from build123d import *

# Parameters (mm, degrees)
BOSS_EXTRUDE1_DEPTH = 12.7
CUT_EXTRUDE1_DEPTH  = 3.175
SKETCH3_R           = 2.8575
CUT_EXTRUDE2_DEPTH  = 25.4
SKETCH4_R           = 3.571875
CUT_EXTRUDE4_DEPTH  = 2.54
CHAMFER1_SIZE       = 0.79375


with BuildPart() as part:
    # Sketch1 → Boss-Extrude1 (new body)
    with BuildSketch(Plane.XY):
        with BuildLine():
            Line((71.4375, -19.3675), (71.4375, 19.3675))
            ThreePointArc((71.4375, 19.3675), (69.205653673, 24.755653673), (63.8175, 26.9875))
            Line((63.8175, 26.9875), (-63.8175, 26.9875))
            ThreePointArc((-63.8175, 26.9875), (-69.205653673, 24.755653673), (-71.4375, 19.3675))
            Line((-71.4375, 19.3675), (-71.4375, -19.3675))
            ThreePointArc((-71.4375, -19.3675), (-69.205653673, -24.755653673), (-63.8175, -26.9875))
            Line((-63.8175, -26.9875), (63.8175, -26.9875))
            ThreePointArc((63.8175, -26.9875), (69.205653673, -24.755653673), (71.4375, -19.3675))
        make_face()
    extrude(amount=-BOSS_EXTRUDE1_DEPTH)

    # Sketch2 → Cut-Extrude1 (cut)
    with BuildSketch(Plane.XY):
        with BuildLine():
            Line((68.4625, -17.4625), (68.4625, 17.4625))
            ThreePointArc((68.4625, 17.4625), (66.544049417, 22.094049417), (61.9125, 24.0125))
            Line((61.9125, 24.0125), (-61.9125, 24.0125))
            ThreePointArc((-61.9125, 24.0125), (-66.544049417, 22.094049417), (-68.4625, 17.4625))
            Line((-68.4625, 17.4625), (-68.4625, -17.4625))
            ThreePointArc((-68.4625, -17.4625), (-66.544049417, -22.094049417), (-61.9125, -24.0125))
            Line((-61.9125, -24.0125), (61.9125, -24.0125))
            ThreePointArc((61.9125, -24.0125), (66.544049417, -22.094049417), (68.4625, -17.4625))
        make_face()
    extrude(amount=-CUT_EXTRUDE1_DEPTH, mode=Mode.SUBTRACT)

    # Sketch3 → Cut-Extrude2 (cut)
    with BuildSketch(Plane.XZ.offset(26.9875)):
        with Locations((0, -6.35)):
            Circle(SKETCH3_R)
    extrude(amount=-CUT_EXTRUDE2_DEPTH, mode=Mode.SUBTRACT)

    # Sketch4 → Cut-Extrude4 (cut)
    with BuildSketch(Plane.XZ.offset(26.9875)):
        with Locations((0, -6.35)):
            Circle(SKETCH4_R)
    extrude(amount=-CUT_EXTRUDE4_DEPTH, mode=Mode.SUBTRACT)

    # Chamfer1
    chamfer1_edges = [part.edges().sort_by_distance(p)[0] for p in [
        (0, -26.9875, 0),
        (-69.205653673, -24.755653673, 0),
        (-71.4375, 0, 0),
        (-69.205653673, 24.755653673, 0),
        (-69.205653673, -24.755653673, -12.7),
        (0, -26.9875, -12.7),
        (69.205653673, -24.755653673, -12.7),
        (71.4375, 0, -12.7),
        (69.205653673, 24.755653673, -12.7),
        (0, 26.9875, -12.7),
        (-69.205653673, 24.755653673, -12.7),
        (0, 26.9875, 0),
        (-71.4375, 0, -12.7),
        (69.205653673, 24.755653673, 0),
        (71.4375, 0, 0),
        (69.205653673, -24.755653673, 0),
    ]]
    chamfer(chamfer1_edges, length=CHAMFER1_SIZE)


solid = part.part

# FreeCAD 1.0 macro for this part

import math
import FreeCAD as App
import Part
import Sketcher
from FreeCAD import Vector
Q = App.Units.Quantity


def edges_at(feature, points):
    """Names of the edges that pass closest to the given points."""
    edges = feature.Shape.Edges
    near = lambda p: min(range(len(edges)), key=lambda i: edges[i].distToShape(Part.Vertex(*p))[0])
    return sorted({f"Edge{near(p) + 1}" for p in points})

doc = App.newDocument("Part")
body = doc.addObject("PartDesign::Body", "Body")

sketch1 = body.newObject("Sketcher::SketchObject", "Sketch")
sketch1.AttachmentSupport = (doc.getObject("XY_Plane"), [""])
sketch1.MapMode = "FlatFace"
sketch1.addGeometry([
    Part.LineSegment(Vector(71, -19, 0), Vector(71, 19, 0)),
    Part.ArcOfCircle(Part.Circle(Vector(64, 19, 0), Vector(0, 0, 1), 8), math.radians(0), math.radians(90)),
    Part.LineSegment(Vector(64, 27, 0), Vector(-64, 27, 0)),
    Part.ArcOfCircle(Part.Circle(Vector(-64, 19, 0), Vector(0, 0, 1), 8), math.radians(90), math.radians(180)),
    Part.LineSegment(Vector(-71, 19, 0), Vector(-71, -19, 0)),
    Part.ArcOfCircle(Part.Circle(Vector(-64, -19, 0), Vector(0, 0, 1), 8), math.radians(180), math.radians(270)),
    Part.LineSegment(Vector(-64, -27, 0), Vector(64, -27, 0)),
    Part.ArcOfCircle(Part.Circle(Vector(64, -19, 0), Vector(0, 0, 1), 8), math.radians(-90), math.radians(0)),
], False)
sketch1.addConstraint([
    Sketcher.Constraint("Tangent", 0, 2, 1, 1),
    Sketcher.Constraint("Tangent", 1, 2, 2, 1),
    Sketcher.Constraint("Tangent", 2, 2, 3, 1),
    Sketcher.Constraint("Tangent", 3, 2, 4, 1),
    Sketcher.Constraint("Tangent", 4, 2, 5, 1),
    Sketcher.Constraint("Tangent", 5, 2, 6, 1),
    Sketcher.Constraint("Tangent", 6, 2, 7, 1),
    Sketcher.Constraint("Tangent", 7, 2, 0, 1),
    Sketcher.Constraint("Vertical", 0),
    Sketcher.Constraint("Horizontal", 2),
    Sketcher.Constraint("Vertical", 4),
    Sketcher.Constraint("Horizontal", 6),
    Sketcher.Constraint("Equal", 1, 3),
    Sketcher.Constraint("Equal", 3, 5),
    Sketcher.Constraint("Equal", 5, 7),
    Sketcher.Constraint("Symmetric", 1, 3, 5, 3, -1, 1),
    Sketcher.Constraint("Radius", 1, Q("0.3 in")),
    Sketcher.Constraint("DistanceX", 2, 2, 2, 1, Q("5.025 in")),
    Sketcher.Constraint("DistanceY", 0, 1, 0, 2, Q("1.525 in")),
])
pad1 = body.newObject("PartDesign::Pad", "Pad")
pad1.Profile = sketch1
pad1.Length = Q("0.5 in")
pad1.Reversed = True

sketch2 = body.newObject("Sketcher::SketchObject", "Sketch001")
sketch2.AttachmentSupport = (doc.getObject("XY_Plane"), [""])
sketch2.MapMode = "FlatFace"
sketch2.addGeometry([
    Part.LineSegment(Vector(68, -17, 0), Vector(68, 17, 0)),
    Part.ArcOfCircle(Part.Circle(Vector(62, 17, 0), Vector(0, 0, 1), 7), math.radians(0), math.radians(90)),
    Part.LineSegment(Vector(62, 24, 0), Vector(-62, 24, 0)),
    Part.ArcOfCircle(Part.Circle(Vector(-62, 17, 0), Vector(0, 0, 1), 7), math.radians(90), math.radians(180)),
    Part.LineSegment(Vector(-68, 17, 0), Vector(-68, -17, 0)),
    Part.ArcOfCircle(Part.Circle(Vector(-62, -17, 0), Vector(0, 0, 1), 7), math.radians(180), math.radians(270)),
    Part.LineSegment(Vector(-62, -24, 0), Vector(62, -24, 0)),
    Part.ArcOfCircle(Part.Circle(Vector(62, -17, 0), Vector(0, 0, 1), 7), math.radians(-90), math.radians(0)),
], False)
sketch2.addConstraint([
    Sketcher.Constraint("Tangent", 0, 2, 1, 1),
    Sketcher.Constraint("Tangent", 1, 2, 2, 1),
    Sketcher.Constraint("Tangent", 2, 2, 3, 1),
    Sketcher.Constraint("Tangent", 3, 2, 4, 1),
    Sketcher.Constraint("Tangent", 4, 2, 5, 1),
    Sketcher.Constraint("Tangent", 5, 2, 6, 1),
    Sketcher.Constraint("Tangent", 6, 2, 7, 1),
    Sketcher.Constraint("Tangent", 7, 2, 0, 1),
    Sketcher.Constraint("Vertical", 0),
    Sketcher.Constraint("Horizontal", 2),
    Sketcher.Constraint("Vertical", 4),
    Sketcher.Constraint("Horizontal", 6),
    Sketcher.Constraint("Equal", 1, 3),
    Sketcher.Constraint("Equal", 3, 5),
    Sketcher.Constraint("Equal", 5, 7),
    Sketcher.Constraint("Symmetric", 1, 3, 5, 3, -1, 1),
    Sketcher.Constraint("DistanceX", 2, 2, 2, 1, Q("4.875 in")),
    Sketcher.Constraint("DistanceY", 0, 1, 0, 2, Q("1.375 in")),
    Sketcher.Constraint("Radius", 1, 6.55),
])
pocket1 = body.newObject("PartDesign::Pocket", "Pocket")
pocket1.Profile = sketch2
pocket1.Length = Q("0.125 in")

sketch3 = body.newObject("Sketcher::SketchObject", "Sketch002")
sketch3.AttachmentSupport = (doc.getObject("XZ_Plane"), [""])
sketch3.MapMode = "FlatFace"
sketch3.AttachmentOffset = App.Placement(Vector(0, 0, 1.0625 * 25.4), App.Rotation())
sketch3.addGeometry(Part.Circle(Vector(0, -6.3, 0), Vector(0, 0, 1), 2.9), False)
sketch3.addConstraint([
    Sketcher.Constraint("PointOnObject", 0, 3, -2),
    Sketcher.Constraint("Diameter", 0, Q("0.225 in")),
    Sketcher.Constraint("DistanceY", 0, 3, -1, 1, Q("0.25 in")),
])
pocket2 = body.newObject("PartDesign::Pocket", "Pocket001")
pocket2.Profile = sketch3
pocket2.Length = Q("1 in")

sketch4 = body.newObject("Sketcher::SketchObject", "Sketch003")
sketch4.AttachmentSupport = (doc.getObject("XZ_Plane"), [""])
sketch4.MapMode = "FlatFace"
sketch4.AttachmentOffset = App.Placement(Vector(0, 0, 1.0625 * 25.4), App.Rotation())
sketch4.addGeometry(Part.Circle(Vector(0, -6.3, 0), Vector(0, 0, 1), 3.6), False)
sketch4.addConstraint([
    Sketcher.Constraint("PointOnObject", 0, 3, -2),
    Sketcher.Constraint("Diameter", 0, Q("0.28125 in")),
    Sketcher.Constraint("DistanceY", 0, 3, -1, 1, Q("0.25 in")),
])
pocket3 = body.newObject("PartDesign::Pocket", "Pocket002")
pocket3.Profile = sketch4
pocket3.Length = Q("0.1 in")
doc.recompute()

chamfer = body.newObject("PartDesign::Chamfer", "Chamfer")
chamfer.Base = (pocket3, edges_at(pocket3, [
    (0, -26.988, 0),
    (-69.206, -24.756, 0),
    (-71.438, 0, 0),
    (-69.206, 24.756, 0),
    (-69.206, -24.756, -12.7),
    (0, -26.988, -12.7),
    (69.206, -24.756, -12.7),
    (71.438, 0, -12.7),
    (69.206, 24.756, -12.7),
    (0, 26.988, -12.7),
    (-69.206, 24.756, -12.7),
    (0, 26.988, 0),
    (-71.438, 0, -12.7),
    (69.206, 24.756, 0),
    (71.438, 0, 0),
    (69.206, -24.756, 0),
]))
chamfer.Size = Q("0.03125 in")

doc.recompute()
